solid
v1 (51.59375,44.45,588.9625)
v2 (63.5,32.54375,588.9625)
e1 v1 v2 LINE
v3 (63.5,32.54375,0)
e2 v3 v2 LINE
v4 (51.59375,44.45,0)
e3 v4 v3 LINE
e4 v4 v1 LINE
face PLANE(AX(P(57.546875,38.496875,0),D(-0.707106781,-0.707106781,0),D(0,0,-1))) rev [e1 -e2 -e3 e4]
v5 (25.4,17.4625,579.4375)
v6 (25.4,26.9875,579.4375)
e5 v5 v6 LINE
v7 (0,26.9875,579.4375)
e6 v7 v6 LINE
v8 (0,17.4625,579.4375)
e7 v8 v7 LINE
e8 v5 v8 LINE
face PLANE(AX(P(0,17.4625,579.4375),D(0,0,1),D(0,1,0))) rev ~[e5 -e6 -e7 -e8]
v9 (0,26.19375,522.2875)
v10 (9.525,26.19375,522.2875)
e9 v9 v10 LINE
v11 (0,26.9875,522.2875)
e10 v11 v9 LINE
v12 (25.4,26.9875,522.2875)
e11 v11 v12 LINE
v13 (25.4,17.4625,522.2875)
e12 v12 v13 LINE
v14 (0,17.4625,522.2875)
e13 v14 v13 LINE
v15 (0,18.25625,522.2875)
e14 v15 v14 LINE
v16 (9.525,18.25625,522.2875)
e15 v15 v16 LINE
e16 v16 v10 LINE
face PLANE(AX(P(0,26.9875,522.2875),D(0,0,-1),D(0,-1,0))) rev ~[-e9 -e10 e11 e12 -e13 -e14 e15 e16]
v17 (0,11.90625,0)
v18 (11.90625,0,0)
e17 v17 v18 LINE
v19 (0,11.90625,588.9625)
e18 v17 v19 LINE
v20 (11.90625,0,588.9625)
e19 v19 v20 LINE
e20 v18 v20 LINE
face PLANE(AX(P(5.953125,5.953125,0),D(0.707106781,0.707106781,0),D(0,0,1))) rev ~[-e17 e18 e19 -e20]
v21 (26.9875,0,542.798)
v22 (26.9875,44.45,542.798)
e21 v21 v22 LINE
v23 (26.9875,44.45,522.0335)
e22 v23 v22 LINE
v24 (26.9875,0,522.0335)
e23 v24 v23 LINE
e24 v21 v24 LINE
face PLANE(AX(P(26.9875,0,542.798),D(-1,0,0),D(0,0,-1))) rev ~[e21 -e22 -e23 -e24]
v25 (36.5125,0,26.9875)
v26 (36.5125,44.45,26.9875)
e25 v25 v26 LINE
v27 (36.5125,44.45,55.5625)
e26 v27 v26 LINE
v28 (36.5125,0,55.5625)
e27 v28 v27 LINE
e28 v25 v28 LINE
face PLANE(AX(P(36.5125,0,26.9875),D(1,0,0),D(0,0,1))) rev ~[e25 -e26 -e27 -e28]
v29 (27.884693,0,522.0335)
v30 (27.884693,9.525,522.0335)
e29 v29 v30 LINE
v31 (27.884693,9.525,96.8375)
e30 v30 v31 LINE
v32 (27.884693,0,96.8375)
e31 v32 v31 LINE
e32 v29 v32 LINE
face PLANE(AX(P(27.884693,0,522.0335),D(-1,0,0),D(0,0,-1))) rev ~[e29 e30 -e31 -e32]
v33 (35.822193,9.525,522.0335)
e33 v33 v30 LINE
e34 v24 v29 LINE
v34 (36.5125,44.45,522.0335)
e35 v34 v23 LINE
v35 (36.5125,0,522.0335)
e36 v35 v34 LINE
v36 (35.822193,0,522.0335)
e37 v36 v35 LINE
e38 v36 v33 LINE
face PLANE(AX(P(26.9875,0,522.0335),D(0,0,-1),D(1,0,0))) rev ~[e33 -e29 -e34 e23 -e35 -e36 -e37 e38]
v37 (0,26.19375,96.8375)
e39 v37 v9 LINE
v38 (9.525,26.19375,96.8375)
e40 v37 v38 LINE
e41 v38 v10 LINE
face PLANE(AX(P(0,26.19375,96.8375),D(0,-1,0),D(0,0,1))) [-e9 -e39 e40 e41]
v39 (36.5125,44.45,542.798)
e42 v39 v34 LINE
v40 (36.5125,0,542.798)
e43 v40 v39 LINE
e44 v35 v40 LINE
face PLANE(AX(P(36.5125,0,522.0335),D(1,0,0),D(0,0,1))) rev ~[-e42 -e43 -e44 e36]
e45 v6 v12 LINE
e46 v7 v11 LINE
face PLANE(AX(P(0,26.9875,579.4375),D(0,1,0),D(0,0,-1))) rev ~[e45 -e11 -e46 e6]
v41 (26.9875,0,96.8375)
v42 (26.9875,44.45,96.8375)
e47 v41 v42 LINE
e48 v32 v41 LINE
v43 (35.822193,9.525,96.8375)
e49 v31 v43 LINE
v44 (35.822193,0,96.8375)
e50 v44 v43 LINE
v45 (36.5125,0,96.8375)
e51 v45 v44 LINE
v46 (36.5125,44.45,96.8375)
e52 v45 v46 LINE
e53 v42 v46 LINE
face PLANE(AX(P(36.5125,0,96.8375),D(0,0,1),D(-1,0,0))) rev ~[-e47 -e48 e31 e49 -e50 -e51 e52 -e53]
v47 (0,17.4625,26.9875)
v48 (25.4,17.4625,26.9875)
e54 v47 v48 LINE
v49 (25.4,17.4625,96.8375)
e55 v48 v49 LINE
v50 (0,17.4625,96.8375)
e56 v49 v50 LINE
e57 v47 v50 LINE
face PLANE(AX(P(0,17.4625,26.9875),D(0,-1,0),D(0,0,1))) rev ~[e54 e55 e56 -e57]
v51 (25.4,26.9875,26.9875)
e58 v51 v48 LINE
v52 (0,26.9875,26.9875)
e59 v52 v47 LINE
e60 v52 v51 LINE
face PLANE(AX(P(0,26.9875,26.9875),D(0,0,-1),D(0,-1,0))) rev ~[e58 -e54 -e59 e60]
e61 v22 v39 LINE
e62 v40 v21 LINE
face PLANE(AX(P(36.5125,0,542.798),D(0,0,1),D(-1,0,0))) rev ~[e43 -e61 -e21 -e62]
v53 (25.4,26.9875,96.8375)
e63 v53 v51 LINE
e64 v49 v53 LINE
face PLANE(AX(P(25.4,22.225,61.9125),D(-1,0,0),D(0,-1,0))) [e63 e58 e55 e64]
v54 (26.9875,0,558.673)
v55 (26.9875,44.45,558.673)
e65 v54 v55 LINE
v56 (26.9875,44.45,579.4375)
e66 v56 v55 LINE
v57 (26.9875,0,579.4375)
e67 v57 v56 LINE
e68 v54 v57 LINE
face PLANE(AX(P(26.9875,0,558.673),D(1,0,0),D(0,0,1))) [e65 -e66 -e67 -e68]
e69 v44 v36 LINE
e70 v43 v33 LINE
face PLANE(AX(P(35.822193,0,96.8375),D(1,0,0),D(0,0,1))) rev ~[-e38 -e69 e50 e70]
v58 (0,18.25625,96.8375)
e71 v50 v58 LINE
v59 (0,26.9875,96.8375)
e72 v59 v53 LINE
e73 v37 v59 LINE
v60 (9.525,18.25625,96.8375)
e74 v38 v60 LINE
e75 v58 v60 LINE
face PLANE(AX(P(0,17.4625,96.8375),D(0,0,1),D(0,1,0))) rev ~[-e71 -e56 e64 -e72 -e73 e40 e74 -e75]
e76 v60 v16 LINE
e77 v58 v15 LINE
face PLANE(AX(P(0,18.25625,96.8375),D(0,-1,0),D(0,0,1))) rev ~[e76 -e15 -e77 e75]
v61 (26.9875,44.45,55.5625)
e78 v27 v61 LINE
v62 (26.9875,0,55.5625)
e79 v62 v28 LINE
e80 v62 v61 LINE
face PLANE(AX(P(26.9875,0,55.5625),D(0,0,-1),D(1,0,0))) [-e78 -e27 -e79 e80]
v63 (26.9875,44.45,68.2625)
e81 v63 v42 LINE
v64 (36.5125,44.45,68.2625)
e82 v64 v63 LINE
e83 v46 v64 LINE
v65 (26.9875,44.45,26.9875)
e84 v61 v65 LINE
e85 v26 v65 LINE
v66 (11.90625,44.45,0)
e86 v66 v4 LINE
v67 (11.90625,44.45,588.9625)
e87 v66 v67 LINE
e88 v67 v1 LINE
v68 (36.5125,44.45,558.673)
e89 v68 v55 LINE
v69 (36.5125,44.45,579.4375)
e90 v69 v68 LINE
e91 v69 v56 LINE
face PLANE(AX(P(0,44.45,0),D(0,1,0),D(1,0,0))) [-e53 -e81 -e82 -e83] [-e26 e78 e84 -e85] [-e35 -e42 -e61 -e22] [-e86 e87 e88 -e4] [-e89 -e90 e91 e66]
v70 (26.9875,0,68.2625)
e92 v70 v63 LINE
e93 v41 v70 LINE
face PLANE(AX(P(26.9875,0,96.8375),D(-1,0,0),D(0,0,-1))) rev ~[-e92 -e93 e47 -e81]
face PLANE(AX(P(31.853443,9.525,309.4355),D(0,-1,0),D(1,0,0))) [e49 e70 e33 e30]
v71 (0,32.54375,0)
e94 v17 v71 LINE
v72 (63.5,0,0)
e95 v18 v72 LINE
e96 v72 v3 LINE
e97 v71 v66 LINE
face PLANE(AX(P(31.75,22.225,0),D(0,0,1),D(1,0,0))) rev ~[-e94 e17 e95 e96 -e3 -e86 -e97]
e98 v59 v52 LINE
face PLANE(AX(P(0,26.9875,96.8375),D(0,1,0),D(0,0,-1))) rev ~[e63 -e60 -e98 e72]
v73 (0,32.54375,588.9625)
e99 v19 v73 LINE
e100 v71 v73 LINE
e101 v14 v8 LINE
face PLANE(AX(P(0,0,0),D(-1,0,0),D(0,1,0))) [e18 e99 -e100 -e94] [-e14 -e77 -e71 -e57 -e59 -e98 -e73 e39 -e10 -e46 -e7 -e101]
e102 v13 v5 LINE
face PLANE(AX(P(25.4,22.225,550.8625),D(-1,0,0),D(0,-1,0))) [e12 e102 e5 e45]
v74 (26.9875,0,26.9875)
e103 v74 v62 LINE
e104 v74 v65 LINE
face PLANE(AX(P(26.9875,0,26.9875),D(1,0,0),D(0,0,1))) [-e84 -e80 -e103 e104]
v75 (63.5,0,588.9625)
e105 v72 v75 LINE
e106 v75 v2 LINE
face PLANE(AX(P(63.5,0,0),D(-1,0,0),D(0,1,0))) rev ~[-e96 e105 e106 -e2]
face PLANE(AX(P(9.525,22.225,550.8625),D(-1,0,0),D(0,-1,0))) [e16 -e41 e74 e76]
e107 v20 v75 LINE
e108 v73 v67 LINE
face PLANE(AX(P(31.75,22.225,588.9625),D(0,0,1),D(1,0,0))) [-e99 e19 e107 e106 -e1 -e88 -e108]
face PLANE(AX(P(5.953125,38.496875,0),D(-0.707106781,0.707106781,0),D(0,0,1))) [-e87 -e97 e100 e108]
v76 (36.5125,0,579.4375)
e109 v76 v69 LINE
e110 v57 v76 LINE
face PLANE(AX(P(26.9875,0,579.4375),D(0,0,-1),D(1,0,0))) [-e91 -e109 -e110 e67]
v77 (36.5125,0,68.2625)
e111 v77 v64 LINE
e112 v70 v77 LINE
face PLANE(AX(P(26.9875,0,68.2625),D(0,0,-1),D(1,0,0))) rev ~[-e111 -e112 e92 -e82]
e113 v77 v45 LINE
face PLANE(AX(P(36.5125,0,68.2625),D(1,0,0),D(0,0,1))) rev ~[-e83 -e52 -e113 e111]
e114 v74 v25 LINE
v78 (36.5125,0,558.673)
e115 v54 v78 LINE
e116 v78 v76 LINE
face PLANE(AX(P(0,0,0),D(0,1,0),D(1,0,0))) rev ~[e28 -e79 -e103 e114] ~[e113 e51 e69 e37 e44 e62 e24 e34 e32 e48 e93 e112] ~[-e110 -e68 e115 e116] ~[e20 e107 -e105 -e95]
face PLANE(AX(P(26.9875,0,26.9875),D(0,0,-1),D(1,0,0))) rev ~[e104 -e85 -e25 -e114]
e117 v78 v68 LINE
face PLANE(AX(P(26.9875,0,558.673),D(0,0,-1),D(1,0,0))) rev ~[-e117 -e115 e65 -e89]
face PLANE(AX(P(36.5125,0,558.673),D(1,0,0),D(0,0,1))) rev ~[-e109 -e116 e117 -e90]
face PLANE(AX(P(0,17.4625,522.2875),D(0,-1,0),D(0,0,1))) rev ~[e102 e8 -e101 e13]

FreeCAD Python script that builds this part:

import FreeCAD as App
import Part
import Sketcher
Q = App.Units.Quantity


def edges_at(feature, points):
    """Names of the edges that pass closest to the given points."""
    edges = feature.Shape.Edges
    near = lambda p: min(range(len(edges)), key=lambda i: edges[i].distToShape(Part.Vertex(*p))[0])
    return sorted({f"Edge{near(p) + 1}" for p in points})

doc = App.newDocument("Part")
body = doc.addObject("PartDesign::Body", "Body")

sketch1 = body.newObject("Sketcher::SketchObject", "Sketch")
sketch1.AttachmentSupport = (doc.getObject("XY_Plane"), [""])
sketch1.MapMode = "FlatFace"
sketch1.addGeometry([
    Part.LineSegment(App.Vector(0, 44, 0), App.Vector(0, 0, 0)),
    Part.LineSegment(App.Vector(0, 0, 0), App.Vector(64, 0, 0)),
    Part.LineSegment(App.Vector(64, 0, 0), App.Vector(64, 44, 0)),
    Part.LineSegment(App.Vector(64, 44, 0), App.Vector(0, 44, 0)),
], False)
sketch1.addConstraint([
    Sketcher.Constraint("Coincident", 0, 2, 1, 1),
    Sketcher.Constraint("Coincident", 1, 2, 2, 1),
    Sketcher.Constraint("Coincident", 2, 2, 3, 1),
    Sketcher.Constraint("Coincident", 3, 2, 0, 1),
    Sketcher.Constraint("Vertical", 0),
    Sketcher.Constraint("Horizontal", 1),
    Sketcher.Constraint("Vertical", 2),
    Sketcher.Constraint("Horizontal", 3),
    Sketcher.Constraint("Coincident", 0, 2, -1, 1),
    Sketcher.Constraint("DistanceX", 1, 1, 1, 2, Q("2.5 in")),
    Sketcher.Constraint("DistanceY", 0, 2, 0, 1, Q("1.75 in")),
])
pad1 = body.newObject("PartDesign::Pad", "Pad")
pad1.Profile = sketch1
pad1.Length = Q("23.1875 in")

sketch2 = body.newObject("Sketcher::SketchObject", "Sketch001")
sketch2.AttachmentSupport = (doc.getObject("YZ_Plane"), [""])
sketch2.MapMode = "FlatFace"
sketch2.addGeometry([
    Part.LineSegment(App.Vector(17, 579, 0), App.Vector(27, 579, 0)),
    Part.LineSegment(App.Vector(27, 579, 0), App.Vector(27, 522, 0)),
    Part.LineSegment(App.Vector(27, 522, 0), App.Vector(17, 522, 0)),
    Part.LineSegment(App.Vector(17, 522, 0), App.Vector(17, 579, 0)),
    Part.LineSegment(App.Vector(27, 97, 0), App.Vector(27, 27, 0)),
    Part.LineSegment(App.Vector(27, 27, 0), App.Vector(17, 27, 0)),
    Part.LineSegment(App.Vector(17, 27, 0), App.Vector(17, 97, 0)),
    Part.LineSegment(App.Vector(17, 97, 0), App.Vector(27, 97, 0)),
], False)
sketch2.addConstraint([
    Sketcher.Constraint("Coincident", 0, 2, 1, 1),
    Sketcher.Constraint("Coincident", 1, 2, 2, 1),
    Sketcher.Constraint("Coincident", 2, 2, 3, 1),
    Sketcher.Constraint("Coincident", 3, 2, 0, 1),
    Sketcher.Constraint("Coincident", 4, 2, 5, 1),
    Sketcher.Constraint("Coincident", 5, 2, 6, 1),
    Sketcher.Constraint("Coincident", 6, 2, 7, 1),
    Sketcher.Constraint("Coincident", 7, 2, 4, 1),
    Sketcher.Constraint("Horizontal", 0),
    Sketcher.Constraint("Vertical", 1),
    Sketcher.Constraint("Horizontal", 2),
    Sketcher.Constraint("Vertical", 3),
    Sketcher.Constraint("Vertical", 4),
    Sketcher.Constraint("Horizontal", 5),
    Sketcher.Constraint("Vertical", 6),
    Sketcher.Constraint("Horizontal", 7),
    Sketcher.Constraint("Vertical", 1, 2, 4, 2),
    Sketcher.Constraint("Vertical", 3, 2, 5, 2),
    Sketcher.Constraint("DistanceY", 6, 2, 3, 2, Q("19 in")),
    Sketcher.Constraint("DistanceY", 1, 2, 1, 1, Q("2.25 in")),
    Sketcher.Constraint("DistanceY", 4, 2, 4, 1, Q("2.75 in")),
    Sketcher.Constraint("DistanceX", 0, 1, 0, 2, Q("0.375 in")),
    Sketcher.Constraint("DistanceX", -1, 1, 0, 2, Q("1.0625 in")),
    Sketcher.Constraint("DistanceY", -1, 1, 0, 2, Q("22.8125 in")),
])
pocket1 = body.newObject("PartDesign::Pocket", "Pocket")
pocket1.Profile = sketch2
pocket1.Length = Q("1 in")
pocket1.Reversed = True

sketch3 = body.newObject("Sketcher::SketchObject", "Sketch002")
sketch3.AttachmentSupport = (doc.getObject("YZ_Plane"), [""])
sketch3.MapMode = "FlatFace"
sketch3.addGeometry([
    Part.LineSegment(App.Vector(17.5, 579.4, 0), App.Vector(27, 579.4, 0)),
    Part.LineSegment(App.Vector(27, 579.4, 0), App.Vector(27, 522.3, 0)),
    Part.LineSegment(App.Vector(27, 522.3, 0), App.Vector(26.2, 522.3, 0)),
    Part.LineSegment(App.Vector(26.2, 522.3, 0), App.Vector(26.2, 96.8, 0)),
    Part.LineSegment(App.Vector(26.2, 96.8, 0), App.Vector(27, 96.8, 0)),
    Part.LineSegment(App.Vector(27, 96.8, 0), App.Vector(27, 27, 0)),
    Part.LineSegment(App.Vector(27, 27, 0), App.Vector(17.5, 27, 0)),
    Part.LineSegment(App.Vector(17.5, 27, 0), App.Vector(17.5, 96.8, 0)),
    Part.LineSegment(App.Vector(17.5, 96.8, 0), App.Vector(18.3, 96.8, 0)),
    Part.LineSegment(App.Vector(18.3, 96.8, 0), App.Vector(18.3, 522.3, 0)),
    Part.LineSegment(App.Vector(18.3, 522.3, 0), App.Vector(17.5, 522.3, 0)),
    Part.LineSegment(App.Vector(17.5, 522.3, 0), App.Vector(17.5, 579.4, 0)),
], False)
sketch3.addConstraint([
    Sketcher.Constraint("Coincident", 0, 2, 1, 1),
    Sketcher.Constraint("Coincident", 1, 2, 2, 1),
    Sketcher.Constraint("Coincident", 2, 2, 3, 1),
    Sketcher.Constraint("Coincident", 3, 2, 4, 1),
    Sketcher.Constraint("Coincident", 4, 2, 5, 1),
    Sketcher.Constraint("Coincident", 5, 2, 6, 1),
    Sketcher.Constraint("Coincident", 6, 2, 7, 1),
    Sketcher.Constraint("Coincident", 7, 2, 8, 1),
    Sketcher.Constraint("Coincident", 8, 2, 9, 1),
    Sketcher.Constraint("Coincident", 9, 2, 10, 1),
    Sketcher.Constraint("Coincident", 10, 2, 11, 1),
    Sketcher.Constraint("Coincident", 11, 2, 0, 1),
    Sketcher.Constraint("Horizontal", 0),
    Sketcher.Constraint("Vertical", 1),
    Sketcher.Constraint("Horizontal", 2),
    Sketcher.Constraint("Vertical", 3),
    Sketcher.Constraint("Horizontal", 4),
    Sketcher.Constraint("Vertical", 5),
    Sketcher.Constraint("Horizontal", 6),
    Sketcher.Constraint("Vertical", 7),
    Sketcher.Constraint("Horizontal", 8),
    Sketcher.Constraint("Vertical", 9),
    Sketcher.Constraint("Horizontal", 10),
    Sketcher.Constraint("Vertical", 11),
    Sketcher.Constraint("Horizontal", 4, 2, 7, 2),
    Sketcher.Constraint("Horizontal", 2, 2, 9, 2),
    Sketcher.Constraint("Vertical", 1, 2, 4, 2),
    Sketcher.Constraint("Vertical", 7, 2, 10, 2),
    Sketcher.Constraint("Equal", 4, 8),
    Sketcher.Constraint("DistanceY", 3, 2, 0, 2, Q("19 in")),
    Sketcher.Constraint("DistanceY", 1, 2, 1, 1, Q("2.25 in")),
    Sketcher.Constraint("DistanceY", 5, 2, 5, 1, Q("2.75 in")),
    Sketcher.Constraint("DistanceX", 0, 1, 0, 2, Q("0.375 in")),
    Sketcher.Constraint("DistanceX", 2, 2, 2, 1, Q("0.03125 in")),
    Sketcher.Constraint("DistanceX", -1, 1, 0, 2, Q("1.0625 in")),
    Sketcher.Constraint("DistanceY", -1, 1, 0, 2, Q("22.8125 in")),
])
pocket2 = body.newObject("PartDesign::Pocket", "Pocket001")
pocket2.Profile = sketch3
pocket2.Length = Q("0.375 in")
pocket2.Reversed = True

sketch4 = body.newObject("Sketcher::SketchObject", "Sketch003")
sketch4.AttachmentSupport = (doc.getObject("XZ_Plane"), [""])
sketch4.MapMode = "FlatFace"
sketch4.addGeometry([
    Part.LineSegment(App.Vector(36, 522, 0), App.Vector(28, 522, 0)),
    Part.LineSegment(App.Vector(28, 522, 0), App.Vector(28, 97, 0)),
    Part.LineSegment(App.Vector(28, 97, 0), App.Vector(36, 97, 0)),
    Part.LineSegment(App.Vector(36, 97, 0), App.Vector(36, 522, 0)),
], False)
sketch4.addConstraint([
    Sketcher.Constraint("Coincident", 0, 2, 1, 1),
    Sketcher.Constraint("Coincident", 1, 2, 2, 1),
    Sketcher.Constraint("Coincident", 2, 2, 3, 1),
    Sketcher.Constraint("Coincident", 3, 2, 0, 1),
    Sketcher.Constraint("Horizontal", 0),
    Sketcher.Constraint("Vertical", 1),
    Sketcher.Constraint("Horizontal", 2),
    Sketcher.Constraint("Vertical", 3),
    Sketcher.Constraint("DistanceY", 1, 2, 1, 1, Q("16.74 in")),
    Sketcher.Constraint("DistanceX", 0, 2, 0, 1, Q("0.3125 in")),
    Sketcher.Constraint("DistanceY", -1, 1, 1, 2, Q("3.8125 in")),
    Sketcher.Constraint("DistanceX", -1, 1, 0, 2, Q("27.884693 mm")),
])
pocket3 = body.newObject("PartDesign::Pocket", "Pocket002")
pocket3.Profile = sketch4
pocket3.Length = Q("0.375 in")

sketch5 = body.newObject("Sketcher::SketchObject", "Sketch004")
sketch5.AttachmentSupport = (doc.getObject("XZ_Plane"), [""])
sketch5.MapMode = "FlatFace"
sketch5.addGeometry([
    Part.LineSegment(App.Vector(27, 579, 0), App.Vector(27, 559, 0)),
    Part.LineSegment(App.Vector(27, 559, 0), App.Vector(37, 559, 0)),
    Part.LineSegment(App.Vector(37, 559, 0), App.Vector(37, 579, 0)),
    Part.LineSegment(App.Vector(37, 579, 0), App.Vector(27, 579, 0)),
    Part.LineSegment(App.Vector(37, 522, 0), App.Vector(37, 543, 0)),
    Part.LineSegment(App.Vector(37, 543, 0), App.Vector(27, 543, 0)),
    Part.LineSegment(App.Vector(27, 543, 0), App.Vector(27, 522, 0)),
    Part.LineSegment(App.Vector(27, 522, 0), App.Vector(37, 522, 0)),
    Part.LineSegment(App.Vector(27, 97, 0), App.Vector(27, 68, 0)),
    Part.LineSegment(App.Vector(27, 68, 0), App.Vector(37, 68, 0)),
    Part.LineSegment(App.Vector(37, 68, 0), App.Vector(37, 97, 0)),
    Part.LineSegment(App.Vector(37, 97, 0), App.Vector(27, 97, 0)),
    Part.LineSegment(App.Vector(27, 56, 0), App.Vector(27, 27, 0)),
    Part.LineSegment(App.Vector(27, 27, 0), App.Vector(37, 27, 0)),
    Part.LineSegment(App.Vector(37, 27, 0), App.Vector(37, 56, 0)),
    Part.LineSegment(App.Vector(37, 56, 0), App.Vector(27, 56, 0)),
], False)
sketch5.addConstraint([
    Sketcher.Constraint("Coincident", 0, 2, 1, 1),
    Sketcher.Constraint("Coincident", 1, 2, 2, 1),
    Sketcher.Constraint("Coincident", 2, 2, 3, 1),
    Sketcher.Constraint("Coincident", 3, 2, 0, 1),
    Sketcher.Constraint("Coincident", 4, 2, 5, 1),
    Sketcher.Constraint("Coincident", 5, 2, 6, 1),
    Sketcher.Constraint("Coincident", 6, 2, 7, 1),
    Sketcher.Constraint("Coincident", 7, 2, 4, 1),
    Sketcher.Constraint("Coincident", 8, 2, 9, 1),
    Sketcher.Constraint("Coincident", 9, 2, 10, 1),
    Sketcher.Constraint("Coincident", 10, 2, 11, 1),
    Sketcher.Constraint("Coincident", 11, 2, 8, 1),
    Sketcher.Constraint("Coincident", 12, 2, 13, 1),
    Sketcher.Constraint("Coincident", 13, 2, 14, 1),
    Sketcher.Constraint("Coincident", 14, 2, 15, 1),
    Sketcher.Constraint("Coincident", 15, 2, 12, 1),
    Sketcher.Constraint("Vertical", 0),
    Sketcher.Constraint("Horizontal", 1),
    Sketcher.Constraint("Vertical", 2),
    Sketcher.Constraint("Horizontal", 3),
    Sketcher.Constraint("Vertical", 4),
    Sketcher.Constraint("Horizontal", 5),
    Sketcher.Constraint("Vertical", 6),
    Sketcher.Constraint("Horizontal", 7),
    Sketcher.Constraint("Vertical", 8),
    Sketcher.Constraint("Horizontal", 9),
    Sketcher.Constraint("Vertical", 10),
    Sketcher.Constraint("Horizontal", 11),
    Sketcher.Constraint("Vertical", 12),
    Sketcher.Constraint("Horizontal", 13),
    Sketcher.Constraint("Vertical", 14),
    Sketcher.Constraint("Horizontal", 15),
    Sketcher.Constraint("Vertical", 2, 2, 4, 2),
    Sketcher.Constraint("Vertical", 3, 2, 5, 2),
    Sketcher.Constraint("Vertical", 6, 2, 8, 2),
    Sketcher.Constraint("Vertical", 7, 2, 9, 2),
    Sketcher.Constraint("Vertical", 11, 2, 12, 2),
    Sketcher.Constraint("Vertical", 10, 2, 13, 2),
    Sketcher.Constraint("Equal", 2, 4),
    Sketcher.Constraint("Equal", 10, 12),
    Sketcher.Constraint("DistanceY", 14, 2, 9, 2, Q("0.5 in")),
    Sketcher.Constraint("DistanceX", 1, 1, 1, 2, Q("0.375 in")),
    Sketcher.Constraint("DistanceY", 8, 2, 8, 1, Q("1.125 in")),
    Sketcher.Constraint("DistanceY", -1, 1, 4, 2, Q("21.37 in")),
    Sketcher.Constraint("DistanceY", 6, 2, 3, 2, Q("2.26 in")),
    Sketcher.Constraint("DistanceY", 10, 2, 7, 2, Q("16.74 in")),
    Sketcher.Constraint("DistanceY", 0, 2, 0, 1, Q("0.8175 in")),
    Sketcher.Constraint("DistanceX", -1, 1, 0, 2, Q("1.0625 in")),
])
pocket4 = body.newObject("PartDesign::Pocket", "Pocket003")
pocket4.Profile = sketch5
pocket4.Type = "ThroughAll"
doc.recompute()

chamfer = body.newObject("PartDesign::Chamfer", "Chamfer")
chamfer.Base = (pocket4, edges_at(pocket4, [(63.5, 44.45, 294.481), (0, 44.45, 294.481), (0, 0, 294.481)]))
chamfer.Size = Q("0.46875 in")

doc.recompute()
